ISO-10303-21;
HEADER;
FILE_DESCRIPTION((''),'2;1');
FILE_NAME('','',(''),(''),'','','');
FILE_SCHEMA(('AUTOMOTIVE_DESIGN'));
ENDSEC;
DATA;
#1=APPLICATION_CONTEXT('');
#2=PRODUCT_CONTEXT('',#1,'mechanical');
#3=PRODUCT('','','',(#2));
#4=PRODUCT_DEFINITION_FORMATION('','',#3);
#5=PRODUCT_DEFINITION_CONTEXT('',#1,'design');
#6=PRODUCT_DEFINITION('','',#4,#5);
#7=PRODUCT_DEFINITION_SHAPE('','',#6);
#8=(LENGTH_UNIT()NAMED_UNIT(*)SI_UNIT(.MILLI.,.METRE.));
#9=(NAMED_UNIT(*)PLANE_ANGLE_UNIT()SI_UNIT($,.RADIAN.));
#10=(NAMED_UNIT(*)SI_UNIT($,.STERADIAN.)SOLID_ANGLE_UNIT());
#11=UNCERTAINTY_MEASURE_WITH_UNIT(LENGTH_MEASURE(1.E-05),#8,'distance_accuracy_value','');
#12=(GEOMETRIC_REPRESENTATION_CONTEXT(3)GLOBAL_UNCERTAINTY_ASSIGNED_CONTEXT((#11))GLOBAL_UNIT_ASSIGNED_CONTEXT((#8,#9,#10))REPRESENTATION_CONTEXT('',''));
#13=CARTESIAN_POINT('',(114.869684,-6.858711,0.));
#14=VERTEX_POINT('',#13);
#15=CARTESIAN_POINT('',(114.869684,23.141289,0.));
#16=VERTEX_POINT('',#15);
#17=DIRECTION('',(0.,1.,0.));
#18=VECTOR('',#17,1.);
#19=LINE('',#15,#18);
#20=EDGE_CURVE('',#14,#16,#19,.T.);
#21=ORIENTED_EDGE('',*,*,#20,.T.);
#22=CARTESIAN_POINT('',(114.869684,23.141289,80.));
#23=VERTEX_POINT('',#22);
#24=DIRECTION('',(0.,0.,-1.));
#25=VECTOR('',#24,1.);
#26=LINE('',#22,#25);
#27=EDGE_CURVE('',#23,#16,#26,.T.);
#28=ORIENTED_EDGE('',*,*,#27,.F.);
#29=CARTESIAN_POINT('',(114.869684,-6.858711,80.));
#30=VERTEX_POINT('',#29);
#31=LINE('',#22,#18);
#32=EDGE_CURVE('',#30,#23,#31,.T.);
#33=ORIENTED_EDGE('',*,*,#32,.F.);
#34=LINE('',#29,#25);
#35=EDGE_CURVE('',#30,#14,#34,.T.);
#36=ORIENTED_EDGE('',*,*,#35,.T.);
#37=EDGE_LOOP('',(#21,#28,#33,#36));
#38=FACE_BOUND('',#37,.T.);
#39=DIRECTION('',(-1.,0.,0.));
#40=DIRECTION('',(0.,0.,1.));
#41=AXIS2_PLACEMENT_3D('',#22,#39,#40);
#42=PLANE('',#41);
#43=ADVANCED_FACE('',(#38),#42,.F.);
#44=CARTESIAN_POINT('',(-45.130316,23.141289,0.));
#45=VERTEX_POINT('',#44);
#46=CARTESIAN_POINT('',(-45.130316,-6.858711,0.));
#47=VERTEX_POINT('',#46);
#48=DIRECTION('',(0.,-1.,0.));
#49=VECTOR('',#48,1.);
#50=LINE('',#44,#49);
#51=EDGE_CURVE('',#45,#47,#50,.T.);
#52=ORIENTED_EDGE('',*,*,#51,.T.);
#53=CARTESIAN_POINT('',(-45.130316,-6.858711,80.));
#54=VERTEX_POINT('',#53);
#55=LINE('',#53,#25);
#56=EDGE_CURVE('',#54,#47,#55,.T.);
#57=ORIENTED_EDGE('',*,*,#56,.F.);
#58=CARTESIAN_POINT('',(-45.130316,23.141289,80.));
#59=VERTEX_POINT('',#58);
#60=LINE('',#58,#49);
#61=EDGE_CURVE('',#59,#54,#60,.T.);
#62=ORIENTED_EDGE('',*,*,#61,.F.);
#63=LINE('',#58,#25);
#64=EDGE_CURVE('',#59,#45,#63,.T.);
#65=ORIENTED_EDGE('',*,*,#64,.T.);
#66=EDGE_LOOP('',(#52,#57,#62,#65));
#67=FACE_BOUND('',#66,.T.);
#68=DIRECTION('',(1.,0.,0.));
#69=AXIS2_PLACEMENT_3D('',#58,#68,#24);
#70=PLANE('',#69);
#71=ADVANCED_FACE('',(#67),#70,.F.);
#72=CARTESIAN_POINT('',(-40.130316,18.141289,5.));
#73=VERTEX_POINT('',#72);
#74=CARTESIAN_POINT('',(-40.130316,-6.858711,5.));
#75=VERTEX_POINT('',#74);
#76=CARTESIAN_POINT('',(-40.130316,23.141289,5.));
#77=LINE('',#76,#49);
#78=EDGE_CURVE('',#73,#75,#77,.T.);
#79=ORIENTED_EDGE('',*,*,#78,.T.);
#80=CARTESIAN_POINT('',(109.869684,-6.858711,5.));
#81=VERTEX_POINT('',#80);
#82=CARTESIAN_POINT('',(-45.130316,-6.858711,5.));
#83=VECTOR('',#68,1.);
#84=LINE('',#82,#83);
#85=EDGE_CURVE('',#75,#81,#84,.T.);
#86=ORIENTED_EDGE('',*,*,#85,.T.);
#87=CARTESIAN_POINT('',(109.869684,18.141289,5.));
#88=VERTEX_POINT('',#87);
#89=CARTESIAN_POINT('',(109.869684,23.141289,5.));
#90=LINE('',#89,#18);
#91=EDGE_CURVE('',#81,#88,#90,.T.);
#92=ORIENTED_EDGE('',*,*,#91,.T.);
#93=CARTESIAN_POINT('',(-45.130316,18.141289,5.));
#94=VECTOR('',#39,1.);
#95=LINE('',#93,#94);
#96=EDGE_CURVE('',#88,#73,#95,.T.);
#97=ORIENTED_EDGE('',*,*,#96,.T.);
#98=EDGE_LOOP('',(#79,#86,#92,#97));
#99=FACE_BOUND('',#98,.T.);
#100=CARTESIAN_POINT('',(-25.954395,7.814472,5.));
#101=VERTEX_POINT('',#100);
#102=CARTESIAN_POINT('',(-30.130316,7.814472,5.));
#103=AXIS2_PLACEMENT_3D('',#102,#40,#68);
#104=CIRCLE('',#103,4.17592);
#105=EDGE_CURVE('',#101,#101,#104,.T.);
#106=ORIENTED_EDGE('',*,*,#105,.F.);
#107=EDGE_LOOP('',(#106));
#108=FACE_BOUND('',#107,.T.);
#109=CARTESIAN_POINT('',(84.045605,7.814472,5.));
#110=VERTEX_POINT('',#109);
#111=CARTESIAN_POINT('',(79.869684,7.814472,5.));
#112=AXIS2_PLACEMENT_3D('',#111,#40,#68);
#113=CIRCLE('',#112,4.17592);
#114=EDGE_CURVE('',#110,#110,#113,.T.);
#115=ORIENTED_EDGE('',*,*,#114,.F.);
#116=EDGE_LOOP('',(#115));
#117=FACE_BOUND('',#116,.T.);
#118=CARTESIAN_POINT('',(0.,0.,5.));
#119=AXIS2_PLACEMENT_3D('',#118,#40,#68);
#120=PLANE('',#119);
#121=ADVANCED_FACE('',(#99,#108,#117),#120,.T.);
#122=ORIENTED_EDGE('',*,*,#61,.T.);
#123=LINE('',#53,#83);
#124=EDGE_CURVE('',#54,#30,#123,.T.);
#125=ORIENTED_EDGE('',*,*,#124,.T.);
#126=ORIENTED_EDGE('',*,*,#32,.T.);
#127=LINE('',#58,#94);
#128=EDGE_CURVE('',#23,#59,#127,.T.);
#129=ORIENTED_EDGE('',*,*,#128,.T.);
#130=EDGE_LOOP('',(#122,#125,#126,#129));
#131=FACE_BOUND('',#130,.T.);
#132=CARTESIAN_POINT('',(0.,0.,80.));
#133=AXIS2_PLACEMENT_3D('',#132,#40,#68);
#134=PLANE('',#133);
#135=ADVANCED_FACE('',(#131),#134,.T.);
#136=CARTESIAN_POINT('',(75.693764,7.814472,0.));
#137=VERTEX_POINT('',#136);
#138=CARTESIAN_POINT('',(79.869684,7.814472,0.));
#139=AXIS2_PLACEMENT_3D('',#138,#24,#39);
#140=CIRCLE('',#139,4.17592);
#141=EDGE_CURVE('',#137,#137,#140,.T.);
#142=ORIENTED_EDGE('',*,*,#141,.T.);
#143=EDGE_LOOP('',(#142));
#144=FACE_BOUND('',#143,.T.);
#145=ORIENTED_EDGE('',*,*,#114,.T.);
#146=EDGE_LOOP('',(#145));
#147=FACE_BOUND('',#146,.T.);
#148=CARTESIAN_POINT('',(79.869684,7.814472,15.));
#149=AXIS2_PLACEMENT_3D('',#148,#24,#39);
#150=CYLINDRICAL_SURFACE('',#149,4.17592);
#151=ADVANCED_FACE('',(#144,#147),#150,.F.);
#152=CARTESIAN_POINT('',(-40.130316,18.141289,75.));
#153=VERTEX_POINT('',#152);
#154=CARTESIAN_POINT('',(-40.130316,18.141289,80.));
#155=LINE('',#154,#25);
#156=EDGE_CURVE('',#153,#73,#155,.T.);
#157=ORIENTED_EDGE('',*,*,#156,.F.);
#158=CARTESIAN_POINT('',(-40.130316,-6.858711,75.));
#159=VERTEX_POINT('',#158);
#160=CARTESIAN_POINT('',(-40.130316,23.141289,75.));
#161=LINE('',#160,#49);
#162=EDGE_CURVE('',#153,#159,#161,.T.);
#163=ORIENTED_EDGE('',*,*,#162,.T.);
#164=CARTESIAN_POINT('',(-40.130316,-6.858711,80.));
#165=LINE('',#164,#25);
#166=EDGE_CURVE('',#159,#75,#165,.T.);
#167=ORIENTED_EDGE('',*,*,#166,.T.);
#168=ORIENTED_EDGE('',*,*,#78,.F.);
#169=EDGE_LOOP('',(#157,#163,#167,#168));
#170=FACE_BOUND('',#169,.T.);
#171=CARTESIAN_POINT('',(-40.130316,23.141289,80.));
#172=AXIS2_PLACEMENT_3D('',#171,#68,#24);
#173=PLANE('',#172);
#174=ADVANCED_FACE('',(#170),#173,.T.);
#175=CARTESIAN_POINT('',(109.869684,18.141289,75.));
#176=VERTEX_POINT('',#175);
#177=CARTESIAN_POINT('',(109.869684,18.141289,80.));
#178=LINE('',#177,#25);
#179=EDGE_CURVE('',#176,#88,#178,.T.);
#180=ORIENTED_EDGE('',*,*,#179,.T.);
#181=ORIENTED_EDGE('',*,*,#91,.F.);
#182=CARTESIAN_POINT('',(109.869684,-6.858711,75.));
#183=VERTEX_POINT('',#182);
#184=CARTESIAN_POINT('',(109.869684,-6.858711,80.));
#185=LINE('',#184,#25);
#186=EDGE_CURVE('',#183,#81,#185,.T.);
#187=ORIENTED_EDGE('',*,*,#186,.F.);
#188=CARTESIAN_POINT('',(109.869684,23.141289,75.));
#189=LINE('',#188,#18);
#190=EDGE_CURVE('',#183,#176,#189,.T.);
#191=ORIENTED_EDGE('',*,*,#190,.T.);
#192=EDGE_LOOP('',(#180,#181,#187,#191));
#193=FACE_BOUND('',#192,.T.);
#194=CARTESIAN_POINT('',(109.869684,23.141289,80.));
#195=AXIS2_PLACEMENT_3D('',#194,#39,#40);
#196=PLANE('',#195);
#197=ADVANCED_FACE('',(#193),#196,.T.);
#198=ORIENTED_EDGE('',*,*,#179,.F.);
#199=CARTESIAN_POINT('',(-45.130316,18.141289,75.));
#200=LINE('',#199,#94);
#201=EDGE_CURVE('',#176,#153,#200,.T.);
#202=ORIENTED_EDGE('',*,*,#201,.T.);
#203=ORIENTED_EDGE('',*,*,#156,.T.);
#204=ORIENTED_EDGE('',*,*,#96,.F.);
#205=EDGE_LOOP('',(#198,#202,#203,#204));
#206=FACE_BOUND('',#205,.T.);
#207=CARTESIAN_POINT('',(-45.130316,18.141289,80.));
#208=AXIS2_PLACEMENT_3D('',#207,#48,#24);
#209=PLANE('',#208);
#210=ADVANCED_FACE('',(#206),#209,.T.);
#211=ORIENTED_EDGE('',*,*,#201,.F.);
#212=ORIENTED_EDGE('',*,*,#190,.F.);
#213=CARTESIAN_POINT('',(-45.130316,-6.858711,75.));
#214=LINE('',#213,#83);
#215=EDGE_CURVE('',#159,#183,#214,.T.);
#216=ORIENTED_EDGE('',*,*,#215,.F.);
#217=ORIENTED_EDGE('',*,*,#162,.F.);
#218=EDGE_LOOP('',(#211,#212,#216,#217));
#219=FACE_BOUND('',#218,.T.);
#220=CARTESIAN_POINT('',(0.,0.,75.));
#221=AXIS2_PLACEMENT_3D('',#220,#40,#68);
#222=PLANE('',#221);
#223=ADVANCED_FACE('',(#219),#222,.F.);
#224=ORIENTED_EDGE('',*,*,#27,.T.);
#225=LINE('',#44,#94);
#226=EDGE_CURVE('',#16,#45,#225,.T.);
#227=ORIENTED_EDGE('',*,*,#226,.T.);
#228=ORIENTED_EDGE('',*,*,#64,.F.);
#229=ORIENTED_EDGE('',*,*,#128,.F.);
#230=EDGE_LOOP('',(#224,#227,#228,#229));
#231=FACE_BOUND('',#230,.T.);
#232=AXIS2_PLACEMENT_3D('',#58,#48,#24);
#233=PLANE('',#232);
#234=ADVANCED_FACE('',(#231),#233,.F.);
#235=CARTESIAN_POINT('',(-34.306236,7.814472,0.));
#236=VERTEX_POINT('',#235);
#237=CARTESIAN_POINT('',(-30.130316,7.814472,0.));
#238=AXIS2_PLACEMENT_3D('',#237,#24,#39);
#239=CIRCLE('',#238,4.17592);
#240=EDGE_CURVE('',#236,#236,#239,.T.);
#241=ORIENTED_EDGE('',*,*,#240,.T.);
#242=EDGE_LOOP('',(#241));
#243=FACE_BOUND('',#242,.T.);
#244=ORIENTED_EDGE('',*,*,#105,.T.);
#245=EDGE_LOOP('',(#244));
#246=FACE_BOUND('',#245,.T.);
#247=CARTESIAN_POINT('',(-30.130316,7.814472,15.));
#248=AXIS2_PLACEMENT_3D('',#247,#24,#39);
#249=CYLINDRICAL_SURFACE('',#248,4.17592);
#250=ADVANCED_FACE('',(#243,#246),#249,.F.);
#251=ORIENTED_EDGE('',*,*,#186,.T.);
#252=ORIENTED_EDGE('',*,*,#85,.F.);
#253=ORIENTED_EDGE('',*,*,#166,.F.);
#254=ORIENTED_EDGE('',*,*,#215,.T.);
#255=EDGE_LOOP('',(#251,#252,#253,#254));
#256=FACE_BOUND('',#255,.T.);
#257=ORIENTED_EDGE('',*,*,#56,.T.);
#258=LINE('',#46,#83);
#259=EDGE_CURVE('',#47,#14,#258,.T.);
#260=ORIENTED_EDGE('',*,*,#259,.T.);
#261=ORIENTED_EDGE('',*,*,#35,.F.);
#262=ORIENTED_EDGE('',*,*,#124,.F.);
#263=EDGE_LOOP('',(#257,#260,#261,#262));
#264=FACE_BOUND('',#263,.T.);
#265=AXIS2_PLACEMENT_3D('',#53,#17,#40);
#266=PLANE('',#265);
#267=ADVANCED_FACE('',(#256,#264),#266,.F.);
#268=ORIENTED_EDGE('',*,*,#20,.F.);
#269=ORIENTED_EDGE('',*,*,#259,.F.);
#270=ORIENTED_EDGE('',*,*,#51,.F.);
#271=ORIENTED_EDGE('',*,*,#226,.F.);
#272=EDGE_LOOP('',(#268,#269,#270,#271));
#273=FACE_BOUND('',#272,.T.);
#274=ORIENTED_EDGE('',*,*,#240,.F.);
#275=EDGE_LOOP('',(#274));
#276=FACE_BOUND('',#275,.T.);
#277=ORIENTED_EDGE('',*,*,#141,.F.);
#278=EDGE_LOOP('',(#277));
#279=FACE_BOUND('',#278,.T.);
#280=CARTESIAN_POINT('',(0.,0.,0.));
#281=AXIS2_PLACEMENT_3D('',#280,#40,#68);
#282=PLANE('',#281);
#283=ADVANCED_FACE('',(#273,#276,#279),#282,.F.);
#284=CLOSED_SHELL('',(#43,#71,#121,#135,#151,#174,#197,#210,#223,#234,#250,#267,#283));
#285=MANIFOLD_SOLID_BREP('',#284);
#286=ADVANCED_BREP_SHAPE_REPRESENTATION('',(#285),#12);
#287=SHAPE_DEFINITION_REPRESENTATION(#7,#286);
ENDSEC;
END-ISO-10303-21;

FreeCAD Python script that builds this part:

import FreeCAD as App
import Part
import Sketcher


def faces_at(feature, points):
    """Names of the faces that lie closest to the given points."""
    faces = feature.Shape.Faces
    near = lambda p: min(range(len(faces)), key=lambda i: faces[i].distToShape(Part.Vertex(*p))[0])
    return sorted({f"Face{near(p) + 1}" for p in points})

doc = App.newDocument("Part")
body = doc.addObject("PartDesign::Body", "Body")

# Sketch on XY plane
sketch1 = body.newObject("Sketcher::SketchObject", "Sketch")
sketch1.AttachmentSupport = (doc.getObject("XY_Plane"), [""])
sketch1.MapMode = "FlatFace"
sketch1.addGeometry([
    Part.LineSegment(App.Vector(-45.130316, 23.141289, 0), App.Vector(-45.130316, -6.858711, 0)),
    Part.LineSegment(App.Vector(-45.130316, -6.858711, 0), App.Vector(114.869684, -6.858711, 0)),
    Part.LineSegment(App.Vector(114.869684, -6.858711, 0), App.Vector(114.869684, 23.141289, 0)),
    Part.LineSegment(App.Vector(114.869684, 23.141289, 0), App.Vector(-45.130316, 23.141289, 0)),
], False)
sketch1.addConstraint([
    Sketcher.Constraint("Coincident", 0, 2, 1, 1),
    Sketcher.Constraint("Coincident", 1, 2, 2, 1),
    Sketcher.Constraint("Coincident", 2, 2, 3, 1),
    Sketcher.Constraint("Coincident", 3, 2, 0, 1),
    Sketcher.Constraint("Vertical", 0),
    Sketcher.Constraint("Horizontal", 1),
    Sketcher.Constraint("Vertical", 2),
    Sketcher.Constraint("Horizontal", 3),
    Sketcher.Constraint("DistanceX", 1, 1, 1, 2, 160.0),
    Sketcher.Constraint("DistanceY", 0, 2, 0, 1, 30.0),
    Sketcher.Constraint("DistanceY", 0, 2, -1, 1, 6.858711),
    Sketcher.Constraint("DistanceX", 0, 2, -1, 1, 45.130316),
])
pad1 = body.newObject("PartDesign::Pad", "Pad")
pad1.Profile = sketch1
pad1.Length = 80
doc.recompute()

thickness = body.newObject("PartDesign::Thickness", "Thickness")
thickness.Base = (pad1, faces_at(pad1, [(34.87, -6.859, 40)]))
thickness.Value = 5
thickness.Reversed = True
thickness.Join = "Intersection"

# Sketch on XY plane
sketch2 = body.newObject("Sketcher::SketchObject", "Sketch001")
sketch2.AttachmentSupport = (doc.getObject("XY_Plane"), [""])
sketch2.MapMode = "FlatFace"
sketch2.addGeometry(Part.Circle(App.Vector(-30.130316, 7.814472, 0), App.Vector(0, 0, 1), 4.17592), False)
sketch2.addConstraint([
    Sketcher.Constraint("Diameter", 0, 8.35184),
    Sketcher.Constraint("DistanceY", -1, 1, 0, 3, 7.814472),
    Sketcher.Constraint("DistanceX", 0, 3, -1, 1, 30.130316),
])
pocket1 = body.newObject("PartDesign::Pocket", "Pocket")
pocket1.Profile = sketch2
pocket1.Length = 15
pocket1.Reversed = True
doc.recompute()

linearpattern = body.newObject("PartDesign::LinearPattern", "LinearPattern")
linearpattern.Originals = [pocket1]
linearpattern.Direction = (doc.getObject("X_Axis"), [""])
linearpattern.Mode = "offset"
linearpattern.Offset = 110
linearpattern.Occurrences = 4
body.Tip = linearpattern

doc.recompute()
